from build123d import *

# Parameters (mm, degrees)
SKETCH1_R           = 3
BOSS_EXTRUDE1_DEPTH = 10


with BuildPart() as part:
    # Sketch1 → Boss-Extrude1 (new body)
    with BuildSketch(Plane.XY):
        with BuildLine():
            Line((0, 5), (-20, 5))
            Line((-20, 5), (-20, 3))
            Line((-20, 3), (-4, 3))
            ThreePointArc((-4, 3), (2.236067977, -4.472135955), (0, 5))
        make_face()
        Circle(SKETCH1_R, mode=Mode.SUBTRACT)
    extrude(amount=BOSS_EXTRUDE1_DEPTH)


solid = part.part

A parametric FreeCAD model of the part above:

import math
import FreeCAD as App
import Part
import Sketcher
Q = App.Units.Quantity

doc = App.newDocument("Part")
body = doc.addObject("PartDesign::Body", "Body")

# Sketch on XY plane
sketch1 = body.newObject("Sketcher::SketchObject", "Sketch")
sketch1.AttachmentSupport = (doc.getObject("XY_Plane"), [""])
sketch1.MapMode = "FlatFace"
sketch1.addGeometry([
    Part.LineSegment(App.Vector(0, 5, 0), App.Vector(-20, 5, 0)),  # 0
    Part.LineSegment(App.Vector(-20, 5, 0), App.Vector(-20, 3, 0)),  # 1
    Part.LineSegment(App.Vector(-20, 3, 0), App.Vector(-4, 3, 0)),  # 2
    Part.ArcOfCircle(Part.Circle(App.Vector(0, 0, 0), App.Vector(0, 0, 1), 5), math.radians(143.130102), math.radians(450)),  # 3
    Part.Circle(App.Vector(0, 0, 0), App.Vector(0, 0, 1), 3),  # 4
], False)
sketch1.addConstraint([
    Sketcher.Constraint("Coincident", 0, 2, 1, 1),
    Sketcher.Constraint("Coincident", 1, 2, 2, 1),
    Sketcher.Constraint("Coincident", 2, 2, 3, 1),
    Sketcher.Constraint("Tangent", 3, 2, 0, 1),
    Sketcher.Constraint("Horizontal", 0),
    Sketcher.Constraint("Vertical", 1),
    Sketcher.Constraint("Horizontal", 2),
    Sketcher.Constraint("Coincident", 3, 3, -1, 1),
    Sketcher.Constraint("Coincident", 4, 3, -1, 1),
    Sketcher.Constraint("Diameter", 4, Q("6 mm")),
    Sketcher.Constraint("Radius", 3, Q("5 mm")),
    Sketcher.Constraint("DistanceX", 0, 2, 0, 1, Q("20 mm")),
    Sketcher.Constraint("DistanceX", 2, 1, 2, 2, Q("16 mm")),
])
pad1 = body.newObject("PartDesign::Pad", "Pad")
pad1.Profile = sketch1
pad1.Length = 10

doc.recompute()
